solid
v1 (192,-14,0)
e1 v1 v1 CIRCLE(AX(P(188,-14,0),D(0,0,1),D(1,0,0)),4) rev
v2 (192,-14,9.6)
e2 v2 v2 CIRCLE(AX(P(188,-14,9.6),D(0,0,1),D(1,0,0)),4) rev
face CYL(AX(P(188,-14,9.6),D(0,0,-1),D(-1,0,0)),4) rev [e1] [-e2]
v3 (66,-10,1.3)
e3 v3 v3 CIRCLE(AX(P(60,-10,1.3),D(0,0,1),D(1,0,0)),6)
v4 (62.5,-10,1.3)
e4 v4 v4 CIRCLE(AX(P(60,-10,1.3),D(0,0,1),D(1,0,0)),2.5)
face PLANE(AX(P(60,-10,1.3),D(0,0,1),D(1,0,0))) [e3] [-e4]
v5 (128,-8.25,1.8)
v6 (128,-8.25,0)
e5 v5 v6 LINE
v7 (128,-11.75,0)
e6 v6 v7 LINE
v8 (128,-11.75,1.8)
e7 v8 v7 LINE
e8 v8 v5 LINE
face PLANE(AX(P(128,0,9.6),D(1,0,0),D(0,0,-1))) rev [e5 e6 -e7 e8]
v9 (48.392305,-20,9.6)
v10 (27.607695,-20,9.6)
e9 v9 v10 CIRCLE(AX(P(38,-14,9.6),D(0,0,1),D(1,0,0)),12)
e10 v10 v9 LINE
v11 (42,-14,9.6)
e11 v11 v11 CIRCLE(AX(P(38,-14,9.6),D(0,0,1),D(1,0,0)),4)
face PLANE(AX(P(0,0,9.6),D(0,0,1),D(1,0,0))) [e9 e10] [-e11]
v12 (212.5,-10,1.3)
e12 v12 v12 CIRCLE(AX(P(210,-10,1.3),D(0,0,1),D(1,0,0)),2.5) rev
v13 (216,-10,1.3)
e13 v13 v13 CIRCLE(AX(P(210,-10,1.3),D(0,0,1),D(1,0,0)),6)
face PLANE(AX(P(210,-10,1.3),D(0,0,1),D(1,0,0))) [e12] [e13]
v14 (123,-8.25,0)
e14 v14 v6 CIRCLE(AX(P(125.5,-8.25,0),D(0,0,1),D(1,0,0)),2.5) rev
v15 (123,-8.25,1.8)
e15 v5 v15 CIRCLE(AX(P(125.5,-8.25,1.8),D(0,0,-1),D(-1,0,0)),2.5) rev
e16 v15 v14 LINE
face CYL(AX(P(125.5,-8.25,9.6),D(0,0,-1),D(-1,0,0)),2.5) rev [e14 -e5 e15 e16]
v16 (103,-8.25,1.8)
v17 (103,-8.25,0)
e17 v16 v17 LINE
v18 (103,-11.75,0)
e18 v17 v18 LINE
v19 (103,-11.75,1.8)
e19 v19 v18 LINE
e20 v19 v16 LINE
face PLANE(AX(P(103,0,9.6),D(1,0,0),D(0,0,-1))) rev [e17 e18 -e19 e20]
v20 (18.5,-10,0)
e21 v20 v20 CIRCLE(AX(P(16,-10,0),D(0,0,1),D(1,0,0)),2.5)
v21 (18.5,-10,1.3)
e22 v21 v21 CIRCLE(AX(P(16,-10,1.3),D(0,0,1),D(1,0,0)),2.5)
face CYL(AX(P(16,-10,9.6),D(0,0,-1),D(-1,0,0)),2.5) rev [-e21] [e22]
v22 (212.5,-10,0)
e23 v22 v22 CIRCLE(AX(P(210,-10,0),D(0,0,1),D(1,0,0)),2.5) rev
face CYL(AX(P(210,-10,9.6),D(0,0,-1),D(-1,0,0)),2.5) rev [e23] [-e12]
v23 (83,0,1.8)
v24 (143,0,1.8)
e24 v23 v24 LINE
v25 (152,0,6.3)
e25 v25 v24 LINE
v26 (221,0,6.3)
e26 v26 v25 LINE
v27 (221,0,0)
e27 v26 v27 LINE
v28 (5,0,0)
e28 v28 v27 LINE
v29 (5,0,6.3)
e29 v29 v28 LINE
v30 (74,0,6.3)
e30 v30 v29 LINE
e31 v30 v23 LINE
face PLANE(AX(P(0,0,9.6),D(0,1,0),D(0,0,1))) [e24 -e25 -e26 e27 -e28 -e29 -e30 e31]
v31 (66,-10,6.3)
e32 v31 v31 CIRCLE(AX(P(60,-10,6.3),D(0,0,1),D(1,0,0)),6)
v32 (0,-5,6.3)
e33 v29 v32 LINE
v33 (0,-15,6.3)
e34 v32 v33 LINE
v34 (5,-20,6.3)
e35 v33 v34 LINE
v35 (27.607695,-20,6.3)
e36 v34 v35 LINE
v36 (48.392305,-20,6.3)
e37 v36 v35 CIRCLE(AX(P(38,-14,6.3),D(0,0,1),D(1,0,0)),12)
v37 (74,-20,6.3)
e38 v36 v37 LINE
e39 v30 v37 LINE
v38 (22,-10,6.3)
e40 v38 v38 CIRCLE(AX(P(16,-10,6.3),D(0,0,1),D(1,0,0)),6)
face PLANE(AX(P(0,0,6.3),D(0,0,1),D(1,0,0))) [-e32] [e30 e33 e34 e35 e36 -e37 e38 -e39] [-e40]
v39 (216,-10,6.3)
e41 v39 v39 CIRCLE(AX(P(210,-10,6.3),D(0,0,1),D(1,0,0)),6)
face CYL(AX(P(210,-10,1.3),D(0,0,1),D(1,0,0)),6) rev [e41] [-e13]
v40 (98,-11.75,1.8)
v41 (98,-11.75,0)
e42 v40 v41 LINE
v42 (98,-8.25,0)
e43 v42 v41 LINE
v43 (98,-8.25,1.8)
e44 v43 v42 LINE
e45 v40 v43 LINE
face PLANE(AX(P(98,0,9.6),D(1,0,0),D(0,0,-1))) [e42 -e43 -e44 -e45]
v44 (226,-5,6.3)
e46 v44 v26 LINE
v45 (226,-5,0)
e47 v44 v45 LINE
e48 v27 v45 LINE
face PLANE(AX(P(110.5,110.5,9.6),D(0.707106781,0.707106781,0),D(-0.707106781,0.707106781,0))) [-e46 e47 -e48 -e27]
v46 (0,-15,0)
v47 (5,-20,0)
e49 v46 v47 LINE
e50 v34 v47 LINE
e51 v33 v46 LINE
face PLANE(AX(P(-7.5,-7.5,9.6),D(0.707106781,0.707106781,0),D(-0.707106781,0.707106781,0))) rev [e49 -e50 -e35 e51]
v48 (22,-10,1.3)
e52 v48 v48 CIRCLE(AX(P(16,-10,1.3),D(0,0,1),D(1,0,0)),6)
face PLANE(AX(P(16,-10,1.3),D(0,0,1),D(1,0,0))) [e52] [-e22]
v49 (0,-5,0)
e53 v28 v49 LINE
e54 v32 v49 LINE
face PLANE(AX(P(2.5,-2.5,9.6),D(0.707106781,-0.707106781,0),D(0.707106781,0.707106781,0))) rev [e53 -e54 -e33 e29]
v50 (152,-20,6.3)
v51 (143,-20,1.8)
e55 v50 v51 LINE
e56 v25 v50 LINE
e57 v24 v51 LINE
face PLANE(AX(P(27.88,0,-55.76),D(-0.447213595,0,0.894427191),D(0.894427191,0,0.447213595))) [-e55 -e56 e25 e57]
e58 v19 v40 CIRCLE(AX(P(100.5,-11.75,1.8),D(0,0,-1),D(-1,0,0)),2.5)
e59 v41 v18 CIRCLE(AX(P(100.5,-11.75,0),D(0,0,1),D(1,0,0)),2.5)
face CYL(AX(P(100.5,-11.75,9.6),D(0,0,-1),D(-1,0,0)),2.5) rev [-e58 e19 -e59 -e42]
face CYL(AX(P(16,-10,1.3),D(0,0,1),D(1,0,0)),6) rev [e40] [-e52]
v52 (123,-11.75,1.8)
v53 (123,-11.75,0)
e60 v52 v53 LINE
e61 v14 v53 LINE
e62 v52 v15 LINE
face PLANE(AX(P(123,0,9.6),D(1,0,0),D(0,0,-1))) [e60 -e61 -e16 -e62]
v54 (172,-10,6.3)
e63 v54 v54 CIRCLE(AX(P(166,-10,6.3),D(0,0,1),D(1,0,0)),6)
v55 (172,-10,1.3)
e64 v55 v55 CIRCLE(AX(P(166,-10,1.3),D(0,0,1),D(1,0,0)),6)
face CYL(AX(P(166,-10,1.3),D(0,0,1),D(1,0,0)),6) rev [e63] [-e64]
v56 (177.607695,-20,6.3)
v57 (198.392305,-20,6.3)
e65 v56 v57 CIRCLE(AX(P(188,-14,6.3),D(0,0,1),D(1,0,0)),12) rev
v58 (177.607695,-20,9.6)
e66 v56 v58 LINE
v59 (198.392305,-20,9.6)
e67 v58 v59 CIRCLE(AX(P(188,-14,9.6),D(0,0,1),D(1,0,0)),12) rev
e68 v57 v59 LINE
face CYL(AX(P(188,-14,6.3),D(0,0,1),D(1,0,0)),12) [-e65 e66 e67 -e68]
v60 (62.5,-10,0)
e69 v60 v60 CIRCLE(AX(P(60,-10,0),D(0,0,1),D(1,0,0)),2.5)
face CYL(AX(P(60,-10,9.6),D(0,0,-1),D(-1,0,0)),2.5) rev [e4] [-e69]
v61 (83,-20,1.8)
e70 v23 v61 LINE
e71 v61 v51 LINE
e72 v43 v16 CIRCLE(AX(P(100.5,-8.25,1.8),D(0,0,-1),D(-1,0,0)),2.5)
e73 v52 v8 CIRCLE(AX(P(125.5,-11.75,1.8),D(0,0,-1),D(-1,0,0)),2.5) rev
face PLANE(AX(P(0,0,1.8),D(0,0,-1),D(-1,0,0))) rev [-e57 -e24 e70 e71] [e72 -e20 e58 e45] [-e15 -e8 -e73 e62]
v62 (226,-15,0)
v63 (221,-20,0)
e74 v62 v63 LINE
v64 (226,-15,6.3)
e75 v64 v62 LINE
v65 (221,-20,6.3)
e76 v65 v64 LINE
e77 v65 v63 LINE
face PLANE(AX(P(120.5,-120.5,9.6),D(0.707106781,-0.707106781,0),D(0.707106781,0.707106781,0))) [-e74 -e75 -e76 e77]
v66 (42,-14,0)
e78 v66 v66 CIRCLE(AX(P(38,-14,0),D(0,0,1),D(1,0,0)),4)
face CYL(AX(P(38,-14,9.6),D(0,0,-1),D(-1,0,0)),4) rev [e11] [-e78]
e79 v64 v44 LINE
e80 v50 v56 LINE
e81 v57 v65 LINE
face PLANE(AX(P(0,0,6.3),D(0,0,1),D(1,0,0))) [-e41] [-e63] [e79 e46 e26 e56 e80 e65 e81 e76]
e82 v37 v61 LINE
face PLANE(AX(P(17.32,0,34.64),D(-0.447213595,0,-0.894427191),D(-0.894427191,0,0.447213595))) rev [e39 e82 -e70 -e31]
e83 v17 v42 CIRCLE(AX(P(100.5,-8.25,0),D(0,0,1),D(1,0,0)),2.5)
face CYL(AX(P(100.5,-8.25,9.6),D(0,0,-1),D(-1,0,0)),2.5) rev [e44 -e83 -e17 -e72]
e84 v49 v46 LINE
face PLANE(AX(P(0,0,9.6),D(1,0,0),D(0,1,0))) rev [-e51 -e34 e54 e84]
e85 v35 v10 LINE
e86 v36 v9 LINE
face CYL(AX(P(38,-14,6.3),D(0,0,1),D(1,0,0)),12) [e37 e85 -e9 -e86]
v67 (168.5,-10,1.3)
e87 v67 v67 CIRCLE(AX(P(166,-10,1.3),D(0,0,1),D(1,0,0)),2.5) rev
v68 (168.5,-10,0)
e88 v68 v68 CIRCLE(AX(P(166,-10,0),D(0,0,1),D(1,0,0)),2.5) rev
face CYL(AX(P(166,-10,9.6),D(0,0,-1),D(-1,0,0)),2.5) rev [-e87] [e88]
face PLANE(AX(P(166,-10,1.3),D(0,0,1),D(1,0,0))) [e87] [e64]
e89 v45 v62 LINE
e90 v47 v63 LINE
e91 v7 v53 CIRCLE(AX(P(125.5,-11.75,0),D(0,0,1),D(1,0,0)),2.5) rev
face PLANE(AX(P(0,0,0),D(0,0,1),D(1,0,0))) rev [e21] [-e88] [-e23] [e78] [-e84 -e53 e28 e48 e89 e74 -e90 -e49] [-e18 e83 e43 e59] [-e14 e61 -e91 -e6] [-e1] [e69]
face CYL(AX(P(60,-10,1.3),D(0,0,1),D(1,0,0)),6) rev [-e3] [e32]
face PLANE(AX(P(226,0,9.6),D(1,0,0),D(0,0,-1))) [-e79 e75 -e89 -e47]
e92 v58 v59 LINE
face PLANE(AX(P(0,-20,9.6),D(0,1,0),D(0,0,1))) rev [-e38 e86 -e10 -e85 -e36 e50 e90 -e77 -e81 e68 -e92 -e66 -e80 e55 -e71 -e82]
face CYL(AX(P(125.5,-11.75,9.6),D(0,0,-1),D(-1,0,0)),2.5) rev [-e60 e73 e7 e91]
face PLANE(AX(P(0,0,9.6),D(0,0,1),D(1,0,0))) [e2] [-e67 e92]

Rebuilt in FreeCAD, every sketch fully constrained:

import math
import FreeCAD as App
import Part
import Sketcher
Q = App.Units.Quantity

doc = App.newDocument("Part")
body = doc.addObject("PartDesign::Body", "Body")

# Sketch on XY plane
sketch1 = doc.addObject("Sketcher::SketchObject", "Sketch")
body.addObject(sketch1)
sketch1.AttachmentSupport = (doc.XY_Plane, [""])
sketch1.MapMode = "FlatFace"
sketch1.addGeometry([
    Part.LineSegment(App.Vector(221, 0, 0), App.Vector(5, 0, 0)),  # 0
    Part.LineSegment(App.Vector(5, 0, 0), App.Vector(0, -5, 0)),  # 1
    Part.LineSegment(App.Vector(0, -5, 0), App.Vector(0, -15, 0)),  # 2
    Part.LineSegment(App.Vector(0, -15, 0), App.Vector(5, -20, 0)),  # 3
    Part.LineSegment(App.Vector(5, -20, 0), App.Vector(221, -20, 0)),  # 4
    Part.LineSegment(App.Vector(221, -20, 0), App.Vector(226, -15, 0)),  # 5
    Part.LineSegment(App.Vector(226, -15, 0), App.Vector(226, -5, 0)),  # 6
    Part.LineSegment(App.Vector(226, -5, 0), App.Vector(221, 0, 0)),  # 7
    Part.Circle(App.Vector(38, -14, 0), App.Vector(0, 0, 1), 4),  # 8
    Part.Circle(App.Vector(188, -14, 0), App.Vector(0, 0, 1), 4),  # 9
    Part.Circle(App.Vector(16, -10, 0), App.Vector(0, 0, 1), 2.5),  # 10
    Part.Circle(App.Vector(60, -10, 0), App.Vector(0, 0, 1), 2.5),  # 11
    Part.LineSegment(App.Vector(98, -11.8, 0), App.Vector(98, -8.2, 0)),  # 12
    Part.ArcOfCircle(Part.Circle(App.Vector(100.5, -8.2, 0), App.Vector(0, 0, 1), 2.5), math.radians(0), math.radians(180)),  # 13
    Part.LineSegment(App.Vector(103, -8.2, 0), App.Vector(103, -11.8, 0)),  # 14
    Part.ArcOfCircle(Part.Circle(App.Vector(100.5, -11.8, 0), App.Vector(0, 0, 1), 2.5), math.radians(180), math.radians(360)),  # 15
    Part.ArcOfCircle(Part.Circle(App.Vector(125.5, -8.2, 0), App.Vector(0, 0, 1), 2.5), math.radians(0), math.radians(180)),  # 16
    Part.LineSegment(App.Vector(128, -8.2, 0), App.Vector(128, -11.8, 0)),  # 17
    Part.ArcOfCircle(Part.Circle(App.Vector(125.5, -11.8, 0), App.Vector(0, 0, 1), 2.5), math.radians(180), math.radians(360)),  # 18
    Part.LineSegment(App.Vector(123, -11.8, 0), App.Vector(123, -8.2, 0)),  # 19
    Part.Circle(App.Vector(166, -10, 0), App.Vector(0, 0, 1), 2.5),  # 20
    Part.Circle(App.Vector(210, -10, 0), App.Vector(0, 0, 1), 2.5),  # 21
], False)
sketch1.addConstraint([
    Sketcher.Constraint("Coincident", 0, 2, 1, 1),
    Sketcher.Constraint("Coincident", 1, 2, 2, 1),
    Sketcher.Constraint("Coincident", 2, 2, 3, 1),
    Sketcher.Constraint("Coincident", 3, 2, 4, 1),
    Sketcher.Constraint("Coincident", 4, 2, 5, 1),
    Sketcher.Constraint("Coincident", 5, 2, 6, 1),
    Sketcher.Constraint("Coincident", 6, 2, 7, 1),
    Sketcher.Constraint("Coincident", 7, 2, 0, 1),
    Sketcher.Constraint("Tangent", 12, 2, 13, 2),
    Sketcher.Constraint("Tangent", 13, 1, 14, 1),
    Sketcher.Constraint("Tangent", 14, 2, 15, 2),
    Sketcher.Constraint("Tangent", 15, 1, 12, 1),
    Sketcher.Constraint("Tangent", 16, 1, 17, 1),
    Sketcher.Constraint("Tangent", 17, 2, 18, 2),
    Sketcher.Constraint("Tangent", 18, 1, 19, 1),
    Sketcher.Constraint("Tangent", 19, 2, 16, 2),
    Sketcher.Constraint("Horizontal", 0),
    Sketcher.Constraint("Vertical", 2),
    Sketcher.Constraint("Horizontal", 4),
    Sketcher.Constraint("Vertical", 6),
    Sketcher.Constraint("Vertical", 12),
    Sketcher.Constraint("Vertical", 14),
    Sketcher.Constraint("Vertical", 17),
    Sketcher.Constraint("Vertical", 19),
    Sketcher.Constraint("Equal", 8, 9),
    Sketcher.Constraint("Equal", 10, 11),
    Sketcher.Constraint("Equal", 11, 13),
    Sketcher.Constraint("Equal", 15, 16),
    Sketcher.Constraint("Equal", 18, 20),
    Sketcher.Constraint("Equal", 20, 21),
    Sketcher.Constraint("PointOnObject", 0, 2, -1),
    Sketcher.Constraint("PointOnObject", 1, 2, -2),
    Sketcher.Constraint("Perpendicular", 1, 3),
    Sketcher.Constraint("Perpendicular", 3, 5),
    Sketcher.Constraint("Perpendicular", 5, 7),
    Sketcher.Constraint("Horizontal", 8, 3, 9, 3),
    Sketcher.Constraint("Horizontal", 10, 3, 11, 3),
    Sketcher.Constraint("Horizontal", 13, 3, 16, 3),
    Sketcher.Constraint("Horizontal", 15, 3, 18, 3),
    Sketcher.Constraint("Horizontal", 11, 3, 20, 3),
    Sketcher.Constraint("Horizontal", 20, 3, 21, 3),
    Sketcher.Constraint("Horizontal", 2, 2, 5, 2),
    Sketcher.Constraint("Horizontal", 1, 2, 6, 2),
    Sketcher.Constraint("Vertical", 0, 2, 3, 2),
    Sketcher.Constraint("Vertical", 4, 2, 7, 2),
    Sketcher.Constraint("Diameter", 8, Q("8 mm")),
    Sketcher.Constraint("Diameter", 10, Q("5 mm")),
    Sketcher.Constraint("DistanceX", 0, 2, 0, 1, Q("216 mm")),
    Sketcher.Constraint("DistanceY", 2, 2, 2, 1, Q("10 mm")),
    Sketcher.Constraint("DistanceY", 12, 1, 12, 2, Q("3.5 mm")),
    Sketcher.Constraint("DistanceX", -1, 1, 8, 3, Q("38 mm")),
    Sketcher.Constraint("DistanceY", 8, 3, -1, 1, Q("14 mm")),
    Sketcher.Constraint("DistanceX", -1, 1, 9, 3, Q("188 mm")),
    Sketcher.Constraint("DistanceX", -1, 1, 10, 3, Q("16 mm")),
    Sketcher.Constraint("DistanceY", 10, 3, -1, 1, Q("10 mm")),
    Sketcher.Constraint("DistanceX", -1, 1, 11, 3, Q("60 mm")),
    Sketcher.Constraint("DistanceX", -1, 1, 20, 3, Q("166 mm")),
    Sketcher.Constraint("DistanceX", -1, 1, 21, 3, Q("210 mm")),
    Sketcher.Constraint("DistanceX", -1, 1, 0, 2, Q("5 mm")),
    Sketcher.Constraint("DistanceX", -1, 1, 12, 2, Q("98 mm")),
    Sketcher.Constraint("DistanceX", -1, 1, 16, 1, Q("128 mm")),
    Sketcher.Constraint("DistanceY", 13, 3, -1, 1, Q("8.25 mm")),
])
pad1 = doc.addObject("PartDesign::Pad", "Pad")
body.addObject(pad1)
pad1.Profile = sketch1
pad1.Length = 9.6

# Sketch on XY plane
sketch2 = doc.addObject("Sketcher::SketchObject", "Sketch001")
body.addObject(sketch2)
sketch2.AttachmentSupport = (doc.XY_Plane, [""])
sketch2.MapMode = "FlatFace"
sketch2.AttachmentOffset = App.Placement(App.Vector(0, 0, 6.3), App.Rotation())
sketch2.addGeometry([
    Part.LineSegment(App.Vector(48.4, -20, 0), App.Vector(177.6, -20, 0)),  # 0
    Part.ArcOfCircle(Part.Circle(App.Vector(188, -14, 0), App.Vector(0, 0, 1), 12), math.radians(0), math.radians(210)),  # 1
    Part.ArcOfCircle(Part.Circle(App.Vector(188, -14, 0), App.Vector(0, 0, 1), 12), math.radians(-30), math.radians(0)),  # 2
    Part.LineSegment(App.Vector(198.4, -20, 0), App.Vector(221, -20, 0)),  # 3
    Part.LineSegment(App.Vector(221, -20, 0), App.Vector(226, -15, 0)),  # 4
    Part.LineSegment(App.Vector(226, -15, 0), App.Vector(226, -5, 0)),  # 5
    Part.LineSegment(App.Vector(226, -5, 0), App.Vector(221, 0, 0)),  # 6
    Part.LineSegment(App.Vector(221, 0, 0), App.Vector(5, 0, 0)),  # 7
    Part.LineSegment(App.Vector(5, 0, 0), App.Vector(0, -5, 0)),  # 8
    Part.LineSegment(App.Vector(0, -5, 0), App.Vector(0, -15, 0)),  # 9
    Part.LineSegment(App.Vector(0, -15, 0), App.Vector(5, -20, 0)),  # 10
    Part.LineSegment(App.Vector(5, -20, 0), App.Vector(27.6, -20, 0)),  # 11
    Part.ArcOfCircle(Part.Circle(App.Vector(38, -14, 0), App.Vector(0, 0, 1), 12), math.radians(0), math.radians(210)),  # 12
    Part.ArcOfCircle(Part.Circle(App.Vector(38, -14, 0), App.Vector(0, 0, 1), 12), math.radians(-30), math.radians(0)),  # 13
    Part.Circle(App.Vector(16, -10, 0), App.Vector(0, 0, 1), 2.5),  # 14
    Part.Circle(App.Vector(60, -10, 0), App.Vector(0, 0, 1), 2.5),  # 15
    Part.ArcOfCircle(Part.Circle(App.Vector(100.5, -11.8, 0), App.Vector(0, 0, 1), 2.5), math.radians(180), math.radians(360)),  # 16
    Part.LineSegment(App.Vector(98, -11.8, 0), App.Vector(98, -8.2, 0)),  # 17
    Part.ArcOfCircle(Part.Circle(App.Vector(100.5, -8.2, 0), App.Vector(0, 0, 1), 2.5), math.radians(0), math.radians(180)),  # 18
    Part.LineSegment(App.Vector(103, -8.2, 0), App.Vector(103, -11.8, 0)),  # 19
    Part.Circle(App.Vector(210, -10, 0), App.Vector(0, 0, 1), 2.5),  # 20
    Part.ArcOfCircle(Part.Circle(App.Vector(125.5, -11.8, 0), App.Vector(0, 0, 1), 2.5), math.radians(180), math.radians(360)),  # 21
    Part.LineSegment(App.Vector(123, -11.8, 0), App.Vector(123, -8.2, 0)),  # 22
    Part.ArcOfCircle(Part.Circle(App.Vector(125.5, -8.2, 0), App.Vector(0, 0, 1), 2.5), math.radians(0), math.radians(180)),  # 23
    Part.LineSegment(App.Vector(128, -8.2, 0), App.Vector(128, -11.8, 0)),  # 24
    Part.Circle(App.Vector(166, -10, 0), App.Vector(0, 0, 1), 2.5),  # 25
], False)
sketch2.addConstraint([
    Sketcher.Constraint("Coincident", 0, 2, 1, 2),
    Sketcher.Constraint("Tangent", 1, 1, 2, 2),
    Sketcher.Constraint("Coincident", 2, 1, 3, 1),
    Sketcher.Constraint("Coincident", 3, 2, 4, 1),
    Sketcher.Constraint("Coincident", 4, 2, 5, 1),
    Sketcher.Constraint("Coincident", 5, 2, 6, 1),
    Sketcher.Constraint("Coincident", 6, 2, 7, 1),
    Sketcher.Constraint("Coincident", 7, 2, 8, 1),
    Sketcher.Constraint("Coincident", 8, 2, 9, 1),
    Sketcher.Constraint("Coincident", 9, 2, 10, 1),
    Sketcher.Constraint("Coincident", 10, 2, 11, 1),
    Sketcher.Constraint("Coincident", 11, 2, 12, 2),
    Sketcher.Constraint("Tangent", 12, 1, 13, 2),
    Sketcher.Constraint("Coincident", 13, 1, 0, 1),
    Sketcher.Constraint("Tangent", 16, 1, 17, 1),
    Sketcher.Constraint("Tangent", 17, 2, 18, 2),
    Sketcher.Constraint("Tangent", 18, 1, 19, 1),
    Sketcher.Constraint("Tangent", 19, 2, 16, 2),
    Sketcher.Constraint("Tangent", 21, 1, 22, 1),
    Sketcher.Constraint("Tangent", 22, 2, 23, 2),
    Sketcher.Constraint("Tangent", 23, 1, 24, 1),
    Sketcher.Constraint("Tangent", 24, 2, 21, 2),
    Sketcher.Constraint("Horizontal", 0),
    Sketcher.Constraint("Horizontal", 3),
    Sketcher.Constraint("Vertical", 5),
    Sketcher.Constraint("Horizontal", 7),
    Sketcher.Constraint("Vertical", 9),
    Sketcher.Constraint("Horizontal", 11),
    Sketcher.Constraint("Vertical", 17),
    Sketcher.Constraint("Vertical", 19),
    Sketcher.Constraint("Vertical", 22),
    Sketcher.Constraint("Vertical", 24),
    Sketcher.Constraint("Equal", 1, 2),
    Sketcher.Constraint("Equal", 2, 12),
    Sketcher.Constraint("Equal", 12, 13),
    Sketcher.Constraint("Equal", 14, 15),
    Sketcher.Constraint("Equal", 15, 16),
    Sketcher.Constraint("Equal", 18, 20),
    Sketcher.Constraint("Equal", 20, 21),
    Sketcher.Constraint("Equal", 23, 25),
    Sketcher.Constraint("PointOnObject", 6, 2, -1),
    Sketcher.Constraint("PointOnObject", 8, 2, -2),
    Sketcher.Constraint("Perpendicular", 4, 6),
    Sketcher.Constraint("Perpendicular", 6, 8),
    Sketcher.Constraint("Perpendicular", 8, 10),
    Sketcher.Constraint("Horizontal", 2, 3, 12, 3),
    Sketcher.Constraint("Horizontal", 14, 3, 15, 3),
    Sketcher.Constraint("Horizontal", 15, 3, 20, 3),
    Sketcher.Constraint("Horizontal", 16, 3, 21, 3),
    Sketcher.Constraint("Horizontal", 18, 3, 23, 3),
    Sketcher.Constraint("Horizontal", 20, 3, 25, 3),
    Sketcher.Constraint("Horizontal", 13, 3, 1, 1),
    Sketcher.Constraint("Horizontal", 0, 2, 2, 1),
    Sketcher.Constraint("Horizontal", 5, 2, 8, 2),
    Sketcher.Constraint("Horizontal", 4, 2, 9, 2),
    Sketcher.Constraint("Horizontal", 3, 2, 10, 2),
    Sketcher.Constraint("Horizontal", 1, 1, 12, 1),
    Sketcher.Constraint("Vertical", 3, 2, 6, 2),
    Sketcher.Constraint("Vertical", 7, 2, 10, 2),
    Sketcher.Constraint("Equal", 3, 11),
    Sketcher.Constraint("Diameter", 14, Q("5 mm")),
    Sketcher.Constraint("Radius", 1, Q("12 mm")),
    Sketcher.Constraint("DistanceX", 7, 2, 7, 1, Q("216 mm")),
    Sketcher.Constraint("DistanceY", 5, 1, 5, 2, Q("10 mm")),
    Sketcher.Constraint("DistanceY", 17, 1, 17, 2, Q("3.5 mm")),
    Sketcher.Constraint("DistanceX", -1, 1, 1, 3, Q("188 mm")),
    Sketcher.Constraint("DistanceY", 1, 3, -1, 1, Q("14 mm")),
    Sketcher.Constraint("DistanceX", -1, 1, 12, 3, Q("38 mm")),
    Sketcher.Constraint("DistanceX", -1, 1, 14, 3, Q("16 mm")),
    Sketcher.Constraint("DistanceY", 14, 3, -1, 1, Q("10 mm")),
    Sketcher.Constraint("DistanceX", -1, 1, 15, 3, Q("60 mm")),
    Sketcher.Constraint("DistanceX", -1, 1, 20, 3, Q("210 mm")),
    Sketcher.Constraint("DistanceX", -1, 1, 25, 3, Q("166 mm")),
    Sketcher.Constraint("DistanceX", -1, 1, 16, 1, Q("98 mm")),
    Sketcher.Constraint("DistanceX", -1, 1, 21, 1, Q("123 mm")),
    Sketcher.Constraint("DistanceY", 16, 3, -1, 1, Q("11.75 mm")),
])
pocket1 = doc.addObject("PartDesign::Pocket", "Pocket")
body.addObject(pocket1)
pocket1.Profile = sketch2
pocket1.Length = 3.3
pocket1.Reversed = True

# Sketch on XZ plane
sketch3 = doc.addObject("Sketcher::SketchObject", "Sketch002")
body.addObject(sketch3)
sketch3.AttachmentSupport = (doc.XZ_Plane, [""])
sketch3.MapMode = "FlatFace"
sketch3.AttachmentOffset = App.Placement(App.Vector(0, 0, 20), App.Rotation())
sketch3.addGeometry([
    Part.LineSegment(App.Vector(143, 2, 0), App.Vector(152, 6, 0)),
    Part.LineSegment(App.Vector(152, 6, 0), App.Vector(74, 6, 0)),
    Part.LineSegment(App.Vector(74, 6, 0), App.Vector(83, 2, 0)),
    Part.LineSegment(App.Vector(83, 2, 0), App.Vector(143, 2, 0)),
], False)
sketch3.addConstraint([
    Sketcher.Constraint("Coincident", 0, 2, 1, 1),
    Sketcher.Constraint("Coincident", 1, 2, 2, 1),
    Sketcher.Constraint("Coincident", 2, 2, 3, 1),
    Sketcher.Constraint("Coincident", 3, 2, 0, 1),
    Sketcher.Constraint("Horizontal", 1),
    Sketcher.Constraint("Horizontal", 3),
    Sketcher.Constraint("Equal", 0, 2),
    Sketcher.Constraint("DistanceX", 1, 2, 1, 1, Q("78 mm")),
    Sketcher.Constraint("DistanceX", 3, 1, 3, 2, Q("60 mm")),
    Sketcher.Constraint("DistanceX", -1, 1, 0, 2, Q("152 mm")),
    Sketcher.Constraint("DistanceY", -1, 1, 0, 2, Q("6.3 mm")),
    Sketcher.Constraint("DistanceY", -1, 1, 2, 2, Q("1.8 mm")),
])
pocket2 = doc.addObject("PartDesign::Pocket", "Pocket001")
body.addObject(pocket2)
pocket2.Profile = sketch3
pocket2.Type = "ThroughAll"

# Sketch on XY plane
sketch4 = doc.addObject("Sketcher::SketchObject", "Sketch003")
body.addObject(sketch4)
sketch4.AttachmentSupport = (doc.XY_Plane, [""])
sketch4.MapMode = "FlatFace"
sketch4.AttachmentOffset = App.Placement(App.Vector(0, 0, 6.3), App.Rotation())
sketch4.addGeometry([
    Part.Circle(App.Vector(16, -10, 0), App.Vector(0, 0, 1), 6),
    Part.Circle(App.Vector(60, -10, 0), App.Vector(0, 0, 1), 6),
    Part.Circle(App.Vector(166, -10, 0), App.Vector(0, 0, 1), 6),
    Part.Circle(App.Vector(210, -10, 0), App.Vector(0, 0, 1), 6),
], False)
sketch4.addConstraint([
    Sketcher.Constraint("Equal", 0, 1),
    Sketcher.Constraint("Equal", 1, 2),
    Sketcher.Constraint("Equal", 2, 3),
    Sketcher.Constraint("Horizontal", 0, 3, 1, 3),
    Sketcher.Constraint("Horizontal", 1, 3, 2, 3),
    Sketcher.Constraint("Horizontal", 2, 3, 3, 3),
    Sketcher.Constraint("Diameter", 0, Q("12 mm")),
    Sketcher.Constraint("DistanceX", -1, 1, 0, 3, Q("16 mm")),
    Sketcher.Constraint("DistanceY", 0, 3, -1, 1, Q("10 mm")),
    Sketcher.Constraint("DistanceX", -1, 1, 1, 3, Q("60 mm")),
    Sketcher.Constraint("DistanceX", -1, 1, 2, 3, Q("166 mm")),
    Sketcher.Constraint("DistanceX", -1, 1, 3, 3, Q("210 mm")),
])
pocket3 = doc.addObject("PartDesign::Pocket", "Pocket002")
body.addObject(pocket3)
pocket3.Profile = sketch4
pocket3.Length = 5

doc.recompute()
